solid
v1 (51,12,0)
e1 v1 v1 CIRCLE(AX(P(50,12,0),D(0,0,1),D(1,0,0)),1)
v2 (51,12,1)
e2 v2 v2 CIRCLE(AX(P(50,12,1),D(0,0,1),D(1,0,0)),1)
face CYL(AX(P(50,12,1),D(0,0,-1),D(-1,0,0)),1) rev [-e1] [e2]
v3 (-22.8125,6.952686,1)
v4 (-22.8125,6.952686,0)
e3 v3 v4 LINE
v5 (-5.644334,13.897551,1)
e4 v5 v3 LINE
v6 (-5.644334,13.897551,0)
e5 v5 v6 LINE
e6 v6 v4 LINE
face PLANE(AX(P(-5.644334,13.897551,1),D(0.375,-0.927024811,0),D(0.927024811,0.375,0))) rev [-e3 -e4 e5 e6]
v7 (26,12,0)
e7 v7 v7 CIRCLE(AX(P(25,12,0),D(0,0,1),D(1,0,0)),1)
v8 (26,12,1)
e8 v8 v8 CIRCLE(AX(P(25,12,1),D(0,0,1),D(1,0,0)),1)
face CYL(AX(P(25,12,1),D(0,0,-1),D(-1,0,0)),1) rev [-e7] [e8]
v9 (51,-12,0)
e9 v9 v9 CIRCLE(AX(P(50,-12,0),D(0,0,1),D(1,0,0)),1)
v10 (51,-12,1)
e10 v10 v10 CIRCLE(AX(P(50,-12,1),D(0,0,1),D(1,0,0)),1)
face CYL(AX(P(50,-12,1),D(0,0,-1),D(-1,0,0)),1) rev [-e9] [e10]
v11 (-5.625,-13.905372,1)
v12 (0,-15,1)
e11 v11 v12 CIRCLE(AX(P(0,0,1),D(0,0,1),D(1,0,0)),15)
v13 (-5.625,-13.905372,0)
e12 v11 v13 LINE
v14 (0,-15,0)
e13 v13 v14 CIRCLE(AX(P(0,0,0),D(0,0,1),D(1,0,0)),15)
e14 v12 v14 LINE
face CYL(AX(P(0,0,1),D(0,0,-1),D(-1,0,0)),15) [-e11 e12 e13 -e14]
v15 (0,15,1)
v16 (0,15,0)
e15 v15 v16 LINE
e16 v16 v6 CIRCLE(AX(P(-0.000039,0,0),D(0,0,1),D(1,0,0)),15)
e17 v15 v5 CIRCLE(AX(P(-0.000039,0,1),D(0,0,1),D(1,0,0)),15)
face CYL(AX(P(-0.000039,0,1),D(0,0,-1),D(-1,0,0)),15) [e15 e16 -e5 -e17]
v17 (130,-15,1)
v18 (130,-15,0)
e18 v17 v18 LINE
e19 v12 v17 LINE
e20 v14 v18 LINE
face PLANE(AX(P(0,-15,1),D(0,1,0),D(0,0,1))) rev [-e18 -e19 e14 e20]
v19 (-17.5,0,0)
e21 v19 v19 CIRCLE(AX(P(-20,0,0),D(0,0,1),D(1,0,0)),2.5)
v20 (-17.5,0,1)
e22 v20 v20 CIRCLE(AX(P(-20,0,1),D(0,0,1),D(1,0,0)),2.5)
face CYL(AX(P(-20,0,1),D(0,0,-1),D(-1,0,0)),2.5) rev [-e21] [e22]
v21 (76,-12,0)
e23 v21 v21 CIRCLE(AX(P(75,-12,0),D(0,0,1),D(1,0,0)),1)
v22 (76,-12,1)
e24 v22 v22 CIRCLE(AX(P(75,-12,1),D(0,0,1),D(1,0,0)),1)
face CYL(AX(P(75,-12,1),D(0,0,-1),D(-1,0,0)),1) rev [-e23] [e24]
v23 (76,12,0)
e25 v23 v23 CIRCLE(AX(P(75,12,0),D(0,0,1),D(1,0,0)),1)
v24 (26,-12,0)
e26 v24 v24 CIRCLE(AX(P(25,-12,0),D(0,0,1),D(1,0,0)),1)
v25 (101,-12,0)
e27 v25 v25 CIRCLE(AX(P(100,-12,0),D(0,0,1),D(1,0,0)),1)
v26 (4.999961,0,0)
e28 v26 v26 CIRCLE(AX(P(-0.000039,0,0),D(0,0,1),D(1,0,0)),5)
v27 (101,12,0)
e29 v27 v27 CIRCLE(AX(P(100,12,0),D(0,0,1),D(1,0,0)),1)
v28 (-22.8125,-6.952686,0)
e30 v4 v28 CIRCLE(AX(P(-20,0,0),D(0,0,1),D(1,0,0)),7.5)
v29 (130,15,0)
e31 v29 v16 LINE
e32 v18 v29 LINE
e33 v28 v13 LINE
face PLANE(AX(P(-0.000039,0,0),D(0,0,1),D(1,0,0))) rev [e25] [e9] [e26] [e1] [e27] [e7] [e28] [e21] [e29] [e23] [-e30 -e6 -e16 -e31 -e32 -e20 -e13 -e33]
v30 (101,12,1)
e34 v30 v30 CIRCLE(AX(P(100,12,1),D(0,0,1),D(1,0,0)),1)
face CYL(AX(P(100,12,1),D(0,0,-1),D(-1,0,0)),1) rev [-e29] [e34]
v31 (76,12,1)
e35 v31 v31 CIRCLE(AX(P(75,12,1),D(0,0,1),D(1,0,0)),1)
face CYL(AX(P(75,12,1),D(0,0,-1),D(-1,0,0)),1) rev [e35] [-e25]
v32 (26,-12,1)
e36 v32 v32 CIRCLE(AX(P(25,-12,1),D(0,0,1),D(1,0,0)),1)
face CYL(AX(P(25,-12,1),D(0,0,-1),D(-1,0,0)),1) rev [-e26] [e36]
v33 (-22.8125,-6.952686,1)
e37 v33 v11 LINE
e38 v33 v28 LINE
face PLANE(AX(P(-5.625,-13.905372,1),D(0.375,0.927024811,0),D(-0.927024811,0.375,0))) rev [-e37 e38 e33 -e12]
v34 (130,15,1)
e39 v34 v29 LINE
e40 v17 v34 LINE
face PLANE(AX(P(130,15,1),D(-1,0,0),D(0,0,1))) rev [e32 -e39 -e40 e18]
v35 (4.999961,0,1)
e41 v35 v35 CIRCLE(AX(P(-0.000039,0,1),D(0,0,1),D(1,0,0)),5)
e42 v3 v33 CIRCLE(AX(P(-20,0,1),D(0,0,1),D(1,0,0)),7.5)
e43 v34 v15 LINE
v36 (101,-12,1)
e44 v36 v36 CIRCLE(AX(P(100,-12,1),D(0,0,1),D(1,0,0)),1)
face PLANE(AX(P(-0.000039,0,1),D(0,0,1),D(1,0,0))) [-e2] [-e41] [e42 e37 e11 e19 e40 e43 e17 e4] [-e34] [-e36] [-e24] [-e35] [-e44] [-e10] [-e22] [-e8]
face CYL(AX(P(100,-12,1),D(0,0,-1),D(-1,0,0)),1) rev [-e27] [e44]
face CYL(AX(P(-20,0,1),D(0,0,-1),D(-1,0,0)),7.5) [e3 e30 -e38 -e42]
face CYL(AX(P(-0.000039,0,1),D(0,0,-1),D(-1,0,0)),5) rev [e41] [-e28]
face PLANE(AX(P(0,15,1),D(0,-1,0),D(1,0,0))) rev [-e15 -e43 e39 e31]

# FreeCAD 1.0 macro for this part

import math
import FreeCAD as App
import Part
import Sketcher

doc = App.newDocument("Part")
body = doc.addObject("PartDesign::Body", "Body")

# Sketch on XY plane
sketch1 = body.newObject("Sketcher::SketchObject", "Sketch")
sketch1.AttachmentSupport = (doc.getObject("XY_Plane"), [""])
sketch1.MapMode = "FlatFace"
sketch1.addGeometry(Part.LineSegment(App.Vector(-5.6, 13.9, 0), App.Vector(-22.8, 7, 0)), False)
sketch1.addGeometry(Part.ArcOfCircle(Part.Circle(App.Vector(-20, 0, 0), App.Vector(0, 0, 1), 7.5), math.radians(112), math.radians(248)), False)
sketch1.addGeometry(Part.LineSegment(App.Vector(-22.8, -7, 0), App.Vector(-5.6, -13.9, 0)), False)
sketch1.addGeometry(Part.ArcOfCircle(Part.Circle(App.Vector(0, 0, 0), App.Vector(0, 0, 1), 15), math.radians(-112), math.radians(-90)), False)
sketch1.addGeometry(Part.LineSegment(App.Vector(0, -15, 0), App.Vector(130, -15, 0)), False)
sketch1.addGeometry(Part.LineSegment(App.Vector(130, -15, 0), App.Vector(130, 15, 0)), False)
sketch1.addGeometry(Part.LineSegment(App.Vector(130, 15, 0), App.Vector(0, 15, 0)), False)
sketch1.addGeometry(Part.ArcOfCircle(Part.Circle(App.Vector(0, 0, 0), App.Vector(0, 0, 1), 15), math.radians(90), math.radians(112)), False)
sketch1.addGeometry(Part.Circle(App.Vector(25, -12, 0), App.Vector(0, 0, 1), 1), False)
sketch1.addGeometry(Part.Circle(App.Vector(50, -12, 0), App.Vector(0, 0, 1), 1), False)
sketch1.addGeometry(Part.Circle(App.Vector(75, -12, 0), App.Vector(0, 0, 1), 1), False)
sketch1.addGeometry(Part.Circle(App.Vector(100, -12, 0), App.Vector(0, 0, 1), 1), False)
sketch1.addGeometry(Part.Circle(App.Vector(-20, 0, 0), App.Vector(0, 0, 1), 2.5), False)
sketch1.addGeometry(Part.Circle(App.Vector(0, 0, 0), App.Vector(0, 0, 1), 5), False)
sketch1.addGeometry(Part.Circle(App.Vector(25, 12, 0), App.Vector(0, 0, 1), 1), False)
sketch1.addGeometry(Part.Circle(App.Vector(50, 12, 0), App.Vector(0, 0, 1), 1), False)
sketch1.addGeometry(Part.Circle(App.Vector(75, 12, 0), App.Vector(0, 0, 1), 1), False)
sketch1.addGeometry(Part.Circle(App.Vector(100, 12, 0), App.Vector(0, 0, 1), 1), False)
sketch1.addConstraint(Sketcher.Constraint("Tangent", 0, 2, 1, 1))
sketch1.addConstraint(Sketcher.Constraint("Tangent", 1, 2, 2, 1))
sketch1.addConstraint(Sketcher.Constraint("Tangent", 2, 2, 3, 1))
sketch1.addConstraint(Sketcher.Constraint("Tangent", 3, 2, 4, 1))
sketch1.addConstraint(Sketcher.Constraint("Coincident", 4, 2, 5, 1))
sketch1.addConstraint(Sketcher.Constraint("Coincident", 5, 2, 6, 1))
sketch1.addConstraint(Sketcher.Constraint("Coincident", 6, 2, 7, 1))
sketch1.addConstraint(Sketcher.Constraint("Coincident", 7, 2, 0, 1))
sketch1.addConstraint(Sketcher.Constraint("Horizontal", 4))
sketch1.addConstraint(Sketcher.Constraint("Vertical", 5))
sketch1.addConstraint(Sketcher.Constraint("Horizontal", 6))
sketch1.addConstraint(Sketcher.Constraint("Coincident", 3, 3, -1, 1))
sketch1.addConstraint(Sketcher.Constraint("Coincident", 12, 3, 1, 3))
sketch1.addConstraint(Sketcher.Constraint("Coincident", 13, 3, 7, 3))
sketch1.addConstraint(Sketcher.Constraint("Equal", 3, 7))
sketch1.addConstraint(Sketcher.Constraint("Equal", 8, 9))
sketch1.addConstraint(Sketcher.Constraint("Equal", 9, 10))
sketch1.addConstraint(Sketcher.Constraint("Equal", 10, 11))
sketch1.addConstraint(Sketcher.Constraint("Equal", 11, 14))
sketch1.addConstraint(Sketcher.Constraint("Equal", 14, 15))
sketch1.addConstraint(Sketcher.Constraint("Equal", 15, 16))
sketch1.addConstraint(Sketcher.Constraint("Equal", 16, 17))
sketch1.addConstraint(Sketcher.Constraint("Symmetric", 3, 2, 6, 2, -1, 1))
sketch1.addConstraint(Sketcher.Constraint("Symmetric", 8, 3, 14, 3, -1))
sketch1.addConstraint(Sketcher.Constraint("Symmetric", 9, 3, 15, 3, -1))
sketch1.addConstraint(Sketcher.Constraint("Symmetric", 10, 3, 16, 3, -1))
sketch1.addConstraint(Sketcher.Constraint("Symmetric", 11, 3, 17, 3, -1))
sketch1.addConstraint(Sketcher.Constraint("Symmetric", 0, 2, 1, 2, -1))
sketch1.addConstraint(Sketcher.Constraint("Horizontal", 8, 3, 9, 3))
sketch1.addConstraint(Sketcher.Constraint("Horizontal", 9, 3, 10, 3))
sketch1.addConstraint(Sketcher.Constraint("Horizontal", 10, 3, 11, 3))
sketch1.addConstraint(Sketcher.Constraint("Diameter", 8, 2.0))
sketch1.addConstraint(Sketcher.Constraint("Diameter", 12, 5.0))
sketch1.addConstraint(Sketcher.Constraint("Diameter", 13, 10.0))
sketch1.addConstraint(Sketcher.Constraint("Radius", 3, 15.0))
sketch1.addConstraint(Sketcher.Constraint("Radius", 1, 7.5))
sketch1.addConstraint(Sketcher.Constraint("DistanceX", 4, 1, 4, 2, 130.0))
sketch1.addConstraint(Sketcher.Constraint("DistanceX", 1, 3, -1, 1, 20.0))
sketch1.addConstraint(Sketcher.Constraint("DistanceX", -1, 1, 8, 3, 25.0))
sketch1.addConstraint(Sketcher.Constraint("DistanceY", 8, 3, -1, 1, 12.0))
sketch1.addConstraint(Sketcher.Constraint("DistanceX", -1, 1, 9, 3, 50.0))
sketch1.addConstraint(Sketcher.Constraint("DistanceX", -1, 1, 10, 3, 75.0))
sketch1.addConstraint(Sketcher.Constraint("DistanceX", -1, 1, 11, 3, 100.0))
sketch1.addConstraint(Sketcher.Constraint("Distance", 0, 18.519641))
pad1 = body.newObject("PartDesign::Pad", "Pad")
pad1.Profile = sketch1
pad1.Length = 1

doc.recompute()
